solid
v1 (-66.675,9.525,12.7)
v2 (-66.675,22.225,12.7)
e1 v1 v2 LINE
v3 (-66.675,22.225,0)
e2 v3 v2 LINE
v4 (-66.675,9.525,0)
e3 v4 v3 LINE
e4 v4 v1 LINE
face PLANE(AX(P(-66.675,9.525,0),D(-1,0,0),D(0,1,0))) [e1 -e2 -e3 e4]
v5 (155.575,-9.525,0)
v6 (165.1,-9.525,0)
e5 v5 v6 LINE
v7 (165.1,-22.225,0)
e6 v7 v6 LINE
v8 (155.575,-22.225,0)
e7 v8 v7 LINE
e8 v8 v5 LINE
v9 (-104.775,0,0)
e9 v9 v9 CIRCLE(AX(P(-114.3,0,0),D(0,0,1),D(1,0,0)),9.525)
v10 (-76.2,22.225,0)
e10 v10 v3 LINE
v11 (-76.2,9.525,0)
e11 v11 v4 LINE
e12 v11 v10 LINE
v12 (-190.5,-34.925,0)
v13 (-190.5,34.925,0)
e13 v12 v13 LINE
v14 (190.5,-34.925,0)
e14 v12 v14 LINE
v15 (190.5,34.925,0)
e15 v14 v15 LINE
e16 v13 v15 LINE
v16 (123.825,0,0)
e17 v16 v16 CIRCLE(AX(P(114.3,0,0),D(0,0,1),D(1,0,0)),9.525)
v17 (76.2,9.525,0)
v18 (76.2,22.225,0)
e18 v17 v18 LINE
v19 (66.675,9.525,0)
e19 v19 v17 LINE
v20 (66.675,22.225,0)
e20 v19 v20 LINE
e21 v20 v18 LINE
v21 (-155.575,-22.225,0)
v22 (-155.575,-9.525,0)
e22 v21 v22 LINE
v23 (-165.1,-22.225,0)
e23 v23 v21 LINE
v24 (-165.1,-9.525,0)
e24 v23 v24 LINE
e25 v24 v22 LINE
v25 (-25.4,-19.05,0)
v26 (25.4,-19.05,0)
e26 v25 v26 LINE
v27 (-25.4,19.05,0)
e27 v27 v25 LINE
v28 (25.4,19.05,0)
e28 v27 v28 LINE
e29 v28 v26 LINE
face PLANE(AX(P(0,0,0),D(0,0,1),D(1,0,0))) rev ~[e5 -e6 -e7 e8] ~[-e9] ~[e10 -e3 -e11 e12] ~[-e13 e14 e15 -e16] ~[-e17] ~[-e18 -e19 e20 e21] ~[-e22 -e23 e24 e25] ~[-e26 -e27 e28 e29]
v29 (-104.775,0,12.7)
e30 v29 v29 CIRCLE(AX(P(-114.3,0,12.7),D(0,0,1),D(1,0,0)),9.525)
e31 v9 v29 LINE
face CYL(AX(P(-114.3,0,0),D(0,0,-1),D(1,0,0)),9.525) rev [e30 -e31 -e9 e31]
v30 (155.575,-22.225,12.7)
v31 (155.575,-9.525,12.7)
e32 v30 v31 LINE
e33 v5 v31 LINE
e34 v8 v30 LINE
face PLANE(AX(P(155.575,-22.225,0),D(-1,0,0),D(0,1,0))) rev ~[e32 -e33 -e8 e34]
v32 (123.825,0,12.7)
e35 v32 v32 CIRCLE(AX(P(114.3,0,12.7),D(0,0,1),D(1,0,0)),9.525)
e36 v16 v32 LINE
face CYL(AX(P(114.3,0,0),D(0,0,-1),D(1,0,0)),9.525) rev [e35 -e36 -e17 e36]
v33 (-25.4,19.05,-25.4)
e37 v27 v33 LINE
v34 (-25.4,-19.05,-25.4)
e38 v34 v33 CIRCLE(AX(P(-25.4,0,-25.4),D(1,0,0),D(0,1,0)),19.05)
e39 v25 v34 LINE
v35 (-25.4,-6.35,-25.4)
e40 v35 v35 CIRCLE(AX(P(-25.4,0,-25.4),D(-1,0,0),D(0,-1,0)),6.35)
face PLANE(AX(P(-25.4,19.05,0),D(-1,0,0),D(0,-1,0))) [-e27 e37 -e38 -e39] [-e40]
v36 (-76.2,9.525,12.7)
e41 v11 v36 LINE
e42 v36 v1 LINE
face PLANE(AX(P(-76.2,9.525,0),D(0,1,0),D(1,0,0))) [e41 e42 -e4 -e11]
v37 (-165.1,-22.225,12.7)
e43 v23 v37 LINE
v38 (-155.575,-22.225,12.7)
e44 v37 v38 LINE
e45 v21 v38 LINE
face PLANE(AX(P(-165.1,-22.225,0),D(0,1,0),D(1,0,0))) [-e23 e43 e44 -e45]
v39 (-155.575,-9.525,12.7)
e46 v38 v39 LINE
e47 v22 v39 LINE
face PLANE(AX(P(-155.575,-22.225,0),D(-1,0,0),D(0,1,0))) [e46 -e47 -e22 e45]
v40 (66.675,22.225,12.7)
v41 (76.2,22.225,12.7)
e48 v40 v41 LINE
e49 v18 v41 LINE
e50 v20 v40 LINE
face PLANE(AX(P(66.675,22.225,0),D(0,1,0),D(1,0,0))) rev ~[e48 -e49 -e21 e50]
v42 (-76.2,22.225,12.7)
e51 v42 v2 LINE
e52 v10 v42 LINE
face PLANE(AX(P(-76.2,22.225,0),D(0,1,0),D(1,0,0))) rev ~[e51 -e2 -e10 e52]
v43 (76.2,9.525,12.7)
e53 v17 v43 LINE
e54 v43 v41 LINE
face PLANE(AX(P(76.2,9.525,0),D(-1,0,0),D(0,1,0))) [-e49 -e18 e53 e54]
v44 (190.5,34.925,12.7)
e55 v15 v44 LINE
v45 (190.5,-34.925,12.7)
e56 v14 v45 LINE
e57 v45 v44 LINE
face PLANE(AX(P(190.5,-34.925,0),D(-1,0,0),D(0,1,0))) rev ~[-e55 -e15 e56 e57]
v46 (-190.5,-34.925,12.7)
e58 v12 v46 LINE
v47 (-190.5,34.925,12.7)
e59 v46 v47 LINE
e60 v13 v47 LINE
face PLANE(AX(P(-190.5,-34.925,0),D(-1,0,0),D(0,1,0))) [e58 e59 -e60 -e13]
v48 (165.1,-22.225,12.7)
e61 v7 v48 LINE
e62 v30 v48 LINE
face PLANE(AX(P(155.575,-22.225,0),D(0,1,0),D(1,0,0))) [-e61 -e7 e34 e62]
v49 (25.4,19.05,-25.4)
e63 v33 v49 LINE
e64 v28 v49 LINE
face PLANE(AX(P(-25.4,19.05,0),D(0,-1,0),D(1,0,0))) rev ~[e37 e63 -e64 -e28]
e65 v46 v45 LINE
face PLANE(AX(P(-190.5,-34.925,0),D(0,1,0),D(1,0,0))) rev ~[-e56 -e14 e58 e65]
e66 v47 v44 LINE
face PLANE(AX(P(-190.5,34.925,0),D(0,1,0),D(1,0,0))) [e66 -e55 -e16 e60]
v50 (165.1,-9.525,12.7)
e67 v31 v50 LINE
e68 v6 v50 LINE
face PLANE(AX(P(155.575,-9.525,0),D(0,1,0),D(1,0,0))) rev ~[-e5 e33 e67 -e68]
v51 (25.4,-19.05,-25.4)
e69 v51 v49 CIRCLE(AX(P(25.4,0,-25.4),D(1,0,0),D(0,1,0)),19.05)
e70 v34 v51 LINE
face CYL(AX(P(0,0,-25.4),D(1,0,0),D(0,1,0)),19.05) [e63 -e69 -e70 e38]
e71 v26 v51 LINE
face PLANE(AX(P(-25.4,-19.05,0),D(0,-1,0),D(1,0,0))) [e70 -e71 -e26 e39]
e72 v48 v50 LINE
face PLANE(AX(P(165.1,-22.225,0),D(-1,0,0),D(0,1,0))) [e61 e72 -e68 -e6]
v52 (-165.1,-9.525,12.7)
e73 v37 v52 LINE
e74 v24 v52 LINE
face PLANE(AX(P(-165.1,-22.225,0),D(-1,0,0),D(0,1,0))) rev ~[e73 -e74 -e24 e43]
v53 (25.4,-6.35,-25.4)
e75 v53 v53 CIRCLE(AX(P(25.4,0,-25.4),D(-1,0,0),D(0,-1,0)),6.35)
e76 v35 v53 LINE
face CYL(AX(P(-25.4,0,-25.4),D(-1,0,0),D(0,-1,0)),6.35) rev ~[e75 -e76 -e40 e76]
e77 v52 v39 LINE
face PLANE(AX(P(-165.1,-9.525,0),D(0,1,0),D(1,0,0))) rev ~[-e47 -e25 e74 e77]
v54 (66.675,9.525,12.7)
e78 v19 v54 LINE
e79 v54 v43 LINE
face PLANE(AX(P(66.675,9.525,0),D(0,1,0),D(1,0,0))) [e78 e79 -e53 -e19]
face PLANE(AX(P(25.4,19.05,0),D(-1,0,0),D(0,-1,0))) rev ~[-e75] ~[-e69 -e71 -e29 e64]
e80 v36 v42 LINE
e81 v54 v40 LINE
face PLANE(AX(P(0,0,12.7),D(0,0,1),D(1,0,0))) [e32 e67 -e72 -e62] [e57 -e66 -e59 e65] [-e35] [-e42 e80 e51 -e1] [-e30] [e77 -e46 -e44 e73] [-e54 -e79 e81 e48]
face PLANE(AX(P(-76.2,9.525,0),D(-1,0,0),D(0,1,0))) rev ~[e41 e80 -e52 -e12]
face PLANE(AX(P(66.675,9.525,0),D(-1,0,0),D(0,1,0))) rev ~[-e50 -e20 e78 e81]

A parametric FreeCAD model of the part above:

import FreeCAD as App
import Part
import Sketcher
from FreeCAD import Vector
Q = App.Units.Quantity

doc = App.newDocument("Part")
body = doc.addObject("PartDesign::Body", "Body")

# Sketch on XY plane
sketch1 = doc.addObject("Sketcher::SketchObject", "Sketch")
body.addObject(sketch1)
sketch1.AttachmentSupport = (doc.XY_Plane, [""])
sketch1.MapMode = "FlatFace"
sketch1.addGeometry([
    Part.LineSegment(Vector(-190, 35, 0), Vector(-190, -35, 0)),  # 0
    Part.LineSegment(Vector(-190, -35, 0), Vector(190, -35, 0)),  # 1
    Part.LineSegment(Vector(190, -35, 0), Vector(190, 35, 0)),  # 2
    Part.LineSegment(Vector(190, 35, 0), Vector(-190, 35, 0)),  # 3
    Part.LineSegment(Vector(-156, -22, 0), Vector(-165, -22, 0)),  # 4
    Part.LineSegment(Vector(-165, -22, 0), Vector(-165, -10, 0)),  # 5
    Part.LineSegment(Vector(-165, -10, 0), Vector(-156, -10, 0)),  # 6
    Part.LineSegment(Vector(-156, -10, 0), Vector(-156, -22, 0)),  # 7
    Part.LineSegment(Vector(165, -22, 0), Vector(156, -22, 0)),  # 8
    Part.LineSegment(Vector(156, -22, 0), Vector(156, -10, 0)),  # 9
    Part.LineSegment(Vector(156, -10, 0), Vector(165, -10, 0)),  # 10
    Part.LineSegment(Vector(165, -10, 0), Vector(165, -22, 0)),  # 11
    Part.Circle(Vector(-114, 0, 0), Vector(0, 0, 1), 10),  # 12
    Part.LineSegment(Vector(-67, 10, 0), Vector(-76, 10, 0)),  # 13
    Part.LineSegment(Vector(-76, 10, 0), Vector(-76, 22, 0)),  # 14
    Part.LineSegment(Vector(-76, 22, 0), Vector(-67, 22, 0)),  # 15
    Part.LineSegment(Vector(-67, 22, 0), Vector(-67, 10, 0)),  # 16
    Part.Circle(Vector(114, 0, 0), Vector(0, 0, 1), 10),  # 17
    Part.LineSegment(Vector(76, 10, 0), Vector(67, 10, 0)),  # 18
    Part.LineSegment(Vector(67, 10, 0), Vector(67, 22, 0)),  # 19
    Part.LineSegment(Vector(67, 22, 0), Vector(76, 22, 0)),  # 20
    Part.LineSegment(Vector(76, 22, 0), Vector(76, 10, 0)),  # 21
], False)
sketch1.addConstraint([
    Sketcher.Constraint("Coincident", 0, 2, 1, 1),
    Sketcher.Constraint("Coincident", 1, 2, 2, 1),
    Sketcher.Constraint("Coincident", 2, 2, 3, 1),
    Sketcher.Constraint("Coincident", 3, 2, 0, 1),
    Sketcher.Constraint("Coincident", 4, 2, 5, 1),
    Sketcher.Constraint("Coincident", 5, 2, 6, 1),
    Sketcher.Constraint("Coincident", 6, 2, 7, 1),
    Sketcher.Constraint("Coincident", 7, 2, 4, 1),
    Sketcher.Constraint("Coincident", 8, 2, 9, 1),
    Sketcher.Constraint("Coincident", 9, 2, 10, 1),
    Sketcher.Constraint("Coincident", 10, 2, 11, 1),
    Sketcher.Constraint("Coincident", 11, 2, 8, 1),
    Sketcher.Constraint("Coincident", 13, 2, 14, 1),
    Sketcher.Constraint("Coincident", 14, 2, 15, 1),
    Sketcher.Constraint("Coincident", 15, 2, 16, 1),
    Sketcher.Constraint("Coincident", 16, 2, 13, 1),
    Sketcher.Constraint("Coincident", 18, 2, 19, 1),
    Sketcher.Constraint("Coincident", 19, 2, 20, 1),
    Sketcher.Constraint("Coincident", 20, 2, 21, 1),
    Sketcher.Constraint("Coincident", 21, 2, 18, 1),
    Sketcher.Constraint("Vertical", 0),
    Sketcher.Constraint("Horizontal", 1),
    Sketcher.Constraint("Vertical", 2),
    Sketcher.Constraint("Horizontal", 3),
    Sketcher.Constraint("Horizontal", 4),
    Sketcher.Constraint("Vertical", 5),
    Sketcher.Constraint("Horizontal", 6),
    Sketcher.Constraint("Vertical", 7),
    Sketcher.Constraint("Horizontal", 8),
    Sketcher.Constraint("Vertical", 9),
    Sketcher.Constraint("Horizontal", 10),
    Sketcher.Constraint("Vertical", 11),
    Sketcher.Constraint("Horizontal", 13),
    Sketcher.Constraint("Vertical", 14),
    Sketcher.Constraint("Horizontal", 15),
    Sketcher.Constraint("Vertical", 16),
    Sketcher.Constraint("Horizontal", 18),
    Sketcher.Constraint("Vertical", 19),
    Sketcher.Constraint("Horizontal", 20),
    Sketcher.Constraint("Vertical", 21),
    Sketcher.Constraint("Equal", 12, 17),
    Sketcher.Constraint("Symmetric", 12, 3, 17, 3, -1, 1),
    Sketcher.Constraint("Symmetric", 0, 2, 2, 2, -1, 1),
    Sketcher.Constraint("Symmetric", 7, 2, 8, 2, -2),
    Sketcher.Constraint("Symmetric", 5, 2, 10, 2, -2),
    Sketcher.Constraint("Symmetric", 16, 2, 18, 2, -2),
    Sketcher.Constraint("Symmetric", 14, 2, 20, 2, -2),
    Sketcher.Constraint("PointOnObject", 12, 3, -1),
    Sketcher.Constraint("Equal", 10, 13),
    Sketcher.Constraint("Equal", 11, 14),
    Sketcher.Constraint("Diameter", 12, Q("0.75 in")),
    Sketcher.Constraint("DistanceX", 1, 1, 1, 2, Q("15 in")),
    Sketcher.Constraint("DistanceY", 5, 1, 5, 2, Q("0.5 in")),
    Sketcher.Constraint("DistanceX", 13, 2, -1, 1, Q("3 in")),
    Sketcher.Constraint("DistanceX", 12, 3, 17, 3, Q("9 in")),
    Sketcher.Constraint("DistanceX", 0, 2, 4, 2, Q("1 in")),
    Sketcher.Constraint("DistanceY", 0, 2, 5, 2, Q("1 in")),
    Sketcher.Constraint("DistanceY", 0, 2, 0, 1, Q("2.75 in")),
    Sketcher.Constraint("DistanceX", 4, 2, 4, 1, Q("0.375 in")),
    Sketcher.Constraint("DistanceY", 6, 2, 13, 2, Q("0.75 in")),
])
pad1 = doc.addObject("PartDesign::Pad", "Pad")
body.addObject(pad1)
pad1.Profile = sketch1
pad1.Length = Q("0.5 in")

# Sketch on XY plane
sketch2 = doc.addObject("Sketcher::SketchObject", "Sketch001")
body.addObject(sketch2)
sketch2.AttachmentSupport = (doc.XY_Plane, [""])
sketch2.MapMode = "FlatFace"
sketch2.addGeometry([
    Part.LineSegment(Vector(-25, -19, 0), Vector(-25, 19, 0)),
    Part.LineSegment(Vector(-25, 19, 0), Vector(25, 19, 0)),
    Part.LineSegment(Vector(25, 19, 0), Vector(25, -19, 0)),
    Part.LineSegment(Vector(25, -19, 0), Vector(-25, -19, 0)),
], False)
sketch2.addConstraint([
    Sketcher.Constraint("Coincident", 0, 2, 1, 1),
    Sketcher.Constraint("Coincident", 1, 2, 2, 1),
    Sketcher.Constraint("Coincident", 2, 2, 3, 1),
    Sketcher.Constraint("Coincident", 3, 2, 0, 1),
    Sketcher.Constraint("Vertical", 0),
    Sketcher.Constraint("Horizontal", 1),
    Sketcher.Constraint("Vertical", 2),
    Sketcher.Constraint("Horizontal", 3),
    Sketcher.Constraint("Symmetric", 0, 2, 2, 2, -1, 1),
    Sketcher.Constraint("DistanceX", 1, 1, 1, 2, Q("2 in")),
    Sketcher.Constraint("DistanceY", 0, 1, 0, 2, Q("1.5 in")),
])
pad2 = doc.addObject("PartDesign::Pad", "Pad001")
body.addObject(pad2)
pad2.Profile = sketch2
pad2.Length = Q("1 in")
pad2.Reversed = True

# Sketch on XY plane
sketch3 = doc.addObject("Sketcher::SketchObject", "Sketch002")
body.addObject(sketch3)
sketch3.AttachmentSupport = (doc.XY_Plane, [""])
sketch3.MapMode = "FlatFace"
sketch3.AttachmentOffset = App.Placement(Vector(0, 0, -1 * 25.4), App.Rotation())
sketch3.addGeometry([
    Part.LineSegment(Vector(-25, 0, 0), Vector(-25, 19, 0)),
    Part.LineSegment(Vector(-25, 19, 0), Vector(25, 19, 0)),
    Part.LineSegment(Vector(25, 19, 0), Vector(25, 0, 0)),
    Part.LineSegment(Vector(25, 0, 0), Vector(-25, 0, 0)),
], False)
sketch3.addConstraint([
    Sketcher.Constraint("Coincident", 0, 2, 1, 1),
    Sketcher.Constraint("Coincident", 1, 2, 2, 1),
    Sketcher.Constraint("Coincident", 2, 2, 3, 1),
    Sketcher.Constraint("Coincident", 3, 2, 0, 1),
    Sketcher.Constraint("Vertical", 0),
    Sketcher.Constraint("Horizontal", 1),
    Sketcher.Constraint("Vertical", 2),
    Sketcher.Constraint("Horizontal", 3),
    Sketcher.Constraint("Symmetric", 2, 2, 3, 2, -1, 1),
    Sketcher.Constraint("DistanceX", 1, 1, 1, 2, Q("2 in")),
    Sketcher.Constraint("DistanceY", 0, 1, 0, 2, Q("0.75 in")),
])
revolution = doc.addObject("PartDesign::Revolution", "Revolution")
body.addObject(revolution)
revolution.Profile = sketch3
revolution.ReferenceAxis = (sketch3, ["H_Axis"])
revolution.Angle = 360

# Sketch on YZ plane
sketch4 = doc.addObject("Sketcher::SketchObject", "Sketch003")
body.addObject(sketch4)
sketch4.AttachmentSupport = (doc.YZ_Plane, [""])
sketch4.MapMode = "FlatFace"
sketch4.AttachmentOffset = App.Placement(Vector(0, 0, -1 * 25.4), App.Rotation())
sketch4.addGeometry(Part.Circle(Vector(0, -25, 0), Vector(0, 0, 1), 6), False)
sketch4.addConstraint([
    Sketcher.Constraint("PointOnObject", 0, 3, -2),
    Sketcher.Constraint("Diameter", 0, Q("0.5 in")),
    Sketcher.Constraint("DistanceY", 0, 3, -1, 1, Q("1 in")),
])
pocket1 = doc.addObject("PartDesign::Pocket", "Pocket")
body.addObject(pocket1)
pocket1.Profile = sketch4
pocket1.Length = Q("3 in")
pocket1.Reversed = True

doc.recompute()
